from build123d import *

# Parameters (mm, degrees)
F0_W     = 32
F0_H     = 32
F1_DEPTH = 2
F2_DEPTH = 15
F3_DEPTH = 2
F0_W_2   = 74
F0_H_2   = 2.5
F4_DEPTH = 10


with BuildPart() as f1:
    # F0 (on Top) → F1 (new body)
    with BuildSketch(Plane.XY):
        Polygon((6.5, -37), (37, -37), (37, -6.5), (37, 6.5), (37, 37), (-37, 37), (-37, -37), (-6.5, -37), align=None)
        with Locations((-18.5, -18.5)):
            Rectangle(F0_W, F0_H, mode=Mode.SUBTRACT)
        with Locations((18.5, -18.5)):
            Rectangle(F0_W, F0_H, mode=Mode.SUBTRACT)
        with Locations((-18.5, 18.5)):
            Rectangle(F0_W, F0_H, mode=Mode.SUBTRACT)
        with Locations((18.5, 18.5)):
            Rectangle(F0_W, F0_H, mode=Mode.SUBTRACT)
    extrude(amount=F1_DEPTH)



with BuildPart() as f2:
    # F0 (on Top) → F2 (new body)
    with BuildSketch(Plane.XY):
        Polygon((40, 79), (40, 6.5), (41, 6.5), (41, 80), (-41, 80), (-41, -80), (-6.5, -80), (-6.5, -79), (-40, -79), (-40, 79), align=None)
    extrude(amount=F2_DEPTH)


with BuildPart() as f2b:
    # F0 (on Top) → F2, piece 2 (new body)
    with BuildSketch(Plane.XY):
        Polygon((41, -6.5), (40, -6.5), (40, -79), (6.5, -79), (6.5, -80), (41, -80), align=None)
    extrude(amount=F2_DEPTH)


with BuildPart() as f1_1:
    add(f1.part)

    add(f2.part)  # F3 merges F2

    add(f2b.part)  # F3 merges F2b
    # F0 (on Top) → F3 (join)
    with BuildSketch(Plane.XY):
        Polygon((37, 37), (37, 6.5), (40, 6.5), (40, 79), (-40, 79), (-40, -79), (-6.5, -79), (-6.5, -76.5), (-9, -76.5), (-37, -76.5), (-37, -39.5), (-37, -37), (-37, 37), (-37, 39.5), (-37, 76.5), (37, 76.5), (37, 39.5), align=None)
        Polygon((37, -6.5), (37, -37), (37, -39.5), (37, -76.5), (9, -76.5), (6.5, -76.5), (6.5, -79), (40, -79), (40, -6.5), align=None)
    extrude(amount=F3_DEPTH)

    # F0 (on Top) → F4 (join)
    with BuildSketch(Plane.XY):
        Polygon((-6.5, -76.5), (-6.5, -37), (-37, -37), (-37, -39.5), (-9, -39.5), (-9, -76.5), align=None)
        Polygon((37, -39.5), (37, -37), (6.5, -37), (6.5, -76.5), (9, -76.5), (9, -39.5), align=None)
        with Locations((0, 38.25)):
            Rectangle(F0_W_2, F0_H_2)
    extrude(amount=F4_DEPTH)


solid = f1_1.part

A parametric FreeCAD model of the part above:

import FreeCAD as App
import Part
import Sketcher
Q = App.Units.Quantity

doc = App.newDocument("Part")
params = doc.addObject("Spreadsheet::Sheet", "Params")
for row, (alias, value) in enumerate([
    ("sketch1_width", "74 mm"),
    ("sketch1_width2", "32 mm"),
    ("pad1_length", "2 mm"),
    ("sketch2_width", "1 mm"),
    ("sketch2_width2", "82 mm"),
    ("sketch2_height", "160 mm"),
    ("sketch2_width3", "34.5 mm"),
    ("sketch2_height2", "72.5 mm"),
    ("pad2_length", "15 mm"),
    ("sketch3_width", "1 mm"),
    ("sketch3_width2", "33.5 mm"),
    ("sketch3_height", "72.5 mm"),
    ("pad3_length", "15 mm"),
    ("sketch4_width", "3 mm"),
    ("sketch4_width2", "80 mm"),
    ("sketch4_height", "158 mm"),
    ("sketch4_height2", "153 mm"),
    ("sketch4_height3", "70 mm"),
    ("pad4_length", "2 mm"),
    ("sketch5_width", "28 mm"),
    ("sketch5_width2", "74 mm"),
    ("sketch5_height", "37 mm"),
    ("sketch5_width3", "30.5 mm"),
    ("pad5_length", "10 mm"),
], start=1):
    params.set(f"A{row}", alias)
    params.set(f"B{row}", "=" + value)
    params.setAlias(f"B{row}", alias)

body = doc.addObject("PartDesign::Body", "Body")

# Sketch on XY plane
sketch1 = body.newObject("Sketcher::SketchObject", "Sketch")
sketch1.AttachmentSupport = (doc.getObject("XY_Plane"), [""])
sketch1.MapMode = "FlatFace"
sketch1.addGeometry([
    Part.LineSegment(App.Vector(37, -37, 0), App.Vector(37, 37, 0)),  # 0
    Part.LineSegment(App.Vector(37, 37, 0), App.Vector(-37, 37, 0)),  # 1
    Part.LineSegment(App.Vector(-37, 37, 0), App.Vector(-37, -37, 0)),  # 2
    Part.LineSegment(App.Vector(-37, -37, 0), App.Vector(37, -37, 0)),  # 3
    Part.LineSegment(App.Vector(-2, -34, 0), App.Vector(-34, -34, 0)),  # 4
    Part.LineSegment(App.Vector(-34, -34, 0), App.Vector(-34, -2, 0)),  # 5
    Part.LineSegment(App.Vector(-34, -2, 0), App.Vector(-2, -2, 0)),  # 6
    Part.LineSegment(App.Vector(-2, -2, 0), App.Vector(-2, -34, 0)),  # 7
    Part.LineSegment(App.Vector(34, -34, 0), App.Vector(2, -34, 0)),  # 8
    Part.LineSegment(App.Vector(2, -34, 0), App.Vector(2, -2, 0)),  # 9
    Part.LineSegment(App.Vector(2, -2, 0), App.Vector(34, -2, 0)),  # 10
    Part.LineSegment(App.Vector(34, -2, 0), App.Vector(34, -34, 0)),  # 11
    Part.LineSegment(App.Vector(-2, 2, 0), App.Vector(-34, 2, 0)),  # 12
    Part.LineSegment(App.Vector(-34, 2, 0), App.Vector(-34, 34, 0)),  # 13
    Part.LineSegment(App.Vector(-34, 34, 0), App.Vector(-2, 34, 0)),  # 14
    Part.LineSegment(App.Vector(-2, 34, 0), App.Vector(-2, 2, 0)),  # 15
    Part.LineSegment(App.Vector(34, 2, 0), App.Vector(2, 2, 0)),  # 16
    Part.LineSegment(App.Vector(2, 2, 0), App.Vector(2, 34, 0)),  # 17
    Part.LineSegment(App.Vector(2, 34, 0), App.Vector(34, 34, 0)),  # 18
    Part.LineSegment(App.Vector(34, 34, 0), App.Vector(34, 2, 0)),  # 19
], False)
sketch1.addConstraint([
    Sketcher.Constraint("Coincident", 0, 2, 1, 1),
    Sketcher.Constraint("Coincident", 1, 2, 2, 1),
    Sketcher.Constraint("Coincident", 2, 2, 3, 1),
    Sketcher.Constraint("Coincident", 3, 2, 0, 1),
    Sketcher.Constraint("Coincident", 4, 2, 5, 1),
    Sketcher.Constraint("Coincident", 5, 2, 6, 1),
    Sketcher.Constraint("Coincident", 6, 2, 7, 1),
    Sketcher.Constraint("Coincident", 7, 2, 4, 1),
    Sketcher.Constraint("Coincident", 8, 2, 9, 1),
    Sketcher.Constraint("Coincident", 9, 2, 10, 1),
    Sketcher.Constraint("Coincident", 10, 2, 11, 1),
    Sketcher.Constraint("Coincident", 11, 2, 8, 1),
    Sketcher.Constraint("Coincident", 12, 2, 13, 1),
    Sketcher.Constraint("Coincident", 13, 2, 14, 1),
    Sketcher.Constraint("Coincident", 14, 2, 15, 1),
    Sketcher.Constraint("Coincident", 15, 2, 12, 1),
    Sketcher.Constraint("Coincident", 16, 2, 17, 1),
    Sketcher.Constraint("Coincident", 17, 2, 18, 1),
    Sketcher.Constraint("Coincident", 18, 2, 19, 1),
    Sketcher.Constraint("Coincident", 19, 2, 16, 1),
    Sketcher.Constraint("Vertical", 0),
    Sketcher.Constraint("Horizontal", 1),
    Sketcher.Constraint("Vertical", 2),
    Sketcher.Constraint("Horizontal", 3),
    Sketcher.Constraint("Horizontal", 4),
    Sketcher.Constraint("Vertical", 5),
    Sketcher.Constraint("Horizontal", 6),
    Sketcher.Constraint("Vertical", 7),
    Sketcher.Constraint("Horizontal", 8),
    Sketcher.Constraint("Vertical", 9),
    Sketcher.Constraint("Horizontal", 10),
    Sketcher.Constraint("Vertical", 11),
    Sketcher.Constraint("Horizontal", 12),
    Sketcher.Constraint("Vertical", 13),
    Sketcher.Constraint("Horizontal", 14),
    Sketcher.Constraint("Vertical", 15),
    Sketcher.Constraint("Horizontal", 16),
    Sketcher.Constraint("Vertical", 17),
    Sketcher.Constraint("Horizontal", 18),
    Sketcher.Constraint("Vertical", 19),
    Sketcher.Constraint("Symmetric", 0, 2, 2, 2, -1, 1),
    Sketcher.Constraint("Symmetric", 10, 2, 12, 2, -1, 1),
    Sketcher.Constraint("Symmetric", 8, 2, 14, 2, -1, 1),
    Sketcher.Constraint("Symmetric", 6, 2, 16, 2, -1, 1),
    Sketcher.Constraint("Symmetric", 4, 2, 18, 2, -1, 1),
    Sketcher.Constraint("Symmetric", 7, 2, 8, 2, -2),
    Sketcher.Constraint("Symmetric", 5, 2, 10, 2, -2),
    Sketcher.Constraint("Equal", 3, 0),
    Sketcher.Constraint("Equal", 18, 5),
    Sketcher.Constraint("DistanceX", 1, 2, 1, 1, Q("74 mm")),
    Sketcher.Constraint("DistanceX", 4, 2, 4, 1, Q("32 mm")),
    Sketcher.Constraint("DistanceX", 7, 2, 8, 2, Q("5 mm")),
    Sketcher.Constraint("DistanceY", 5, 2, 12, 2, Q("5 mm")),
])
sketch1.setExpression("Constraints[49]", "Params.sketch1_width")
sketch1.setExpression("Constraints[50]", "Params.sketch1_width2")
pad1 = body.newObject("PartDesign::Pad", "Pad")
pad1.Profile = sketch1
pad1.setExpression("Length", "Params.pad1_length")
body2 = doc.addObject("PartDesign::Body", "Body001")

# Sketch on XY plane
sketch2 = body2.newObject("Sketcher::SketchObject", "Sketch001")
sketch2.AttachmentSupport = (doc.getObject("XY_Plane001"), [""])
sketch2.MapMode = "FlatFace"
sketch2.addGeometry([
    Part.LineSegment(App.Vector(40, 79, 0), App.Vector(40, 6.5, 0)),  # 0
    Part.LineSegment(App.Vector(40, 6.5, 0), App.Vector(41, 6.5, 0)),  # 1
    Part.LineSegment(App.Vector(41, 6.5, 0), App.Vector(41, 80, 0)),  # 2
    Part.LineSegment(App.Vector(41, 80, 0), App.Vector(-41, 80, 0)),  # 3
    Part.LineSegment(App.Vector(-41, 80, 0), App.Vector(-41, -80, 0)),  # 4
    Part.LineSegment(App.Vector(-41, -80, 0), App.Vector(-6.5, -80, 0)),  # 5
    Part.LineSegment(App.Vector(-6.5, -80, 0), App.Vector(-6.5, -79, 0)),  # 6
    Part.LineSegment(App.Vector(-6.5, -79, 0), App.Vector(-40, -79, 0)),  # 7
    Part.LineSegment(App.Vector(-40, -79, 0), App.Vector(-40, 79, 0)),  # 8
    Part.LineSegment(App.Vector(-40, 79, 0), App.Vector(40, 79, 0)),  # 9
], False)
sketch2.addConstraint([
    Sketcher.Constraint("Coincident", 0, 2, 1, 1),
    Sketcher.Constraint("Coincident", 1, 2, 2, 1),
    Sketcher.Constraint("Coincident", 2, 2, 3, 1),
    Sketcher.Constraint("Coincident", 3, 2, 4, 1),
    Sketcher.Constraint("Coincident", 4, 2, 5, 1),
    Sketcher.Constraint("Coincident", 5, 2, 6, 1),
    Sketcher.Constraint("Coincident", 6, 2, 7, 1),
    Sketcher.Constraint("Coincident", 7, 2, 8, 1),
    Sketcher.Constraint("Coincident", 8, 2, 9, 1),
    Sketcher.Constraint("Coincident", 9, 2, 0, 1),
    Sketcher.Constraint("Vertical", 0),
    Sketcher.Constraint("Horizontal", 1),
    Sketcher.Constraint("Vertical", 2),
    Sketcher.Constraint("Horizontal", 3),
    Sketcher.Constraint("Vertical", 4),
    Sketcher.Constraint("Horizontal", 5),
    Sketcher.Constraint("Vertical", 6),
    Sketcher.Constraint("Horizontal", 7),
    Sketcher.Constraint("Vertical", 8),
    Sketcher.Constraint("Horizontal", 9),
    Sketcher.Constraint("Symmetric", 2, 2, 4, 2, -1, 1),
    Sketcher.Constraint("Symmetric", 7, 2, 9, 2, -1, 1),
    Sketcher.Constraint("Equal", 1, 6),
    Sketcher.Constraint("DistanceX", 1, 1, 1, 2, Q("1 mm")),
    Sketcher.Constraint("DistanceX", 3, 2, 3, 1, Q("82 mm")),
    Sketcher.Constraint("DistanceY", 4, 2, 4, 1, Q("160 mm")),
    Sketcher.Constraint("DistanceX", 5, 1, 5, 2, Q("34.5 mm")),
    Sketcher.Constraint("DistanceY", 0, 2, 0, 1, Q("72.5 mm")),
])
sketch2.setExpression("Constraints[23]", "Params.sketch2_width")
sketch2.setExpression("Constraints[24]", "Params.sketch2_width2")
sketch2.setExpression("Constraints[25]", "Params.sketch2_height")
sketch2.setExpression("Constraints[26]", "Params.sketch2_width3")
sketch2.setExpression("Constraints[27]", "Params.sketch2_height2")
pad2 = body2.newObject("PartDesign::Pad", "Pad001")
pad2.Profile = sketch2
pad2.setExpression("Length", "Params.pad2_length")
body3 = doc.addObject("PartDesign::Body", "Body002")

# Sketch on XY plane
sketch3 = body3.newObject("Sketcher::SketchObject", "Sketch002")
sketch3.AttachmentSupport = (doc.getObject("XY_Plane002"), [""])
sketch3.MapMode = "FlatFace"
sketch3.addGeometry([
    Part.LineSegment(App.Vector(41, -6.5, 0), App.Vector(40, -6.5, 0)),  # 0
    Part.LineSegment(App.Vector(40, -6.5, 0), App.Vector(40, -79, 0)),  # 1
    Part.LineSegment(App.Vector(40, -79, 0), App.Vector(6.5, -79, 0)),  # 2
    Part.LineSegment(App.Vector(6.5, -79, 0), App.Vector(6.5, -80, 0)),  # 3
    Part.LineSegment(App.Vector(6.5, -80, 0), App.Vector(41, -80, 0)),  # 4
    Part.LineSegment(App.Vector(41, -80, 0), App.Vector(41, -6.5, 0)),  # 5
], False)
sketch3.addConstraint([
    Sketcher.Constraint("Coincident", 0, 2, 1, 1),
    Sketcher.Constraint("Coincident", 1, 2, 2, 1),
    Sketcher.Constraint("Coincident", 2, 2, 3, 1),
    Sketcher.Constraint("Coincident", 3, 2, 4, 1),
    Sketcher.Constraint("Coincident", 4, 2, 5, 1),
    Sketcher.Constraint("Coincident", 5, 2, 0, 1),
    Sketcher.Constraint("Horizontal", 0),
    Sketcher.Constraint("Vertical", 1),
    Sketcher.Constraint("Horizontal", 2),
    Sketcher.Constraint("Vertical", 3),
    Sketcher.Constraint("Horizontal", 4),
    Sketcher.Constraint("Vertical", 5),
    Sketcher.Constraint("Equal", 0, 3),
    Sketcher.Constraint("DistanceX", 0, 2, 0, 1, Q("1 mm")),
    Sketcher.Constraint("DistanceX", 2, 2, 2, 1, Q("33.5 mm")),
    Sketcher.Constraint("DistanceY", 1, 2, 1, 1, Q("72.5 mm")),
    Sketcher.Constraint("DistanceX", -1, 1, 0, 2, Q("40 mm")),
    Sketcher.Constraint("DistanceY", 1, 2, -1, 1, Q("79 mm")),
])
sketch3.setExpression("Constraints[13]", "Params.sketch3_width")
sketch3.setExpression("Constraints[14]", "Params.sketch3_width2")
sketch3.setExpression("Constraints[15]", "Params.sketch3_height")
pad3 = body3.newObject("PartDesign::Pad", "Pad002")
pad3.Profile = sketch3
pad3.setExpression("Length", "Params.pad3_length")
body.AllowCompound = True
doc.recompute()

boolean = body.newObject("PartDesign::Boolean", "Boolean")
boolean.Type = "Fuse"
boolean.addObjects([body2])
doc.recompute()

boolean2 = body.newObject("PartDesign::Boolean", "Boolean001")
boolean2.Type = "Fuse"
boolean2.addObjects([body3])

# Sketch on XY plane
sketch4 = body.newObject("Sketcher::SketchObject", "Sketch003")
sketch4.AttachmentSupport = (doc.getObject("XY_Plane"), [""])
sketch4.MapMode = "FlatFace"
sketch4.addGeometry([
    Part.LineSegment(App.Vector(37, 6.5, 0), App.Vector(40, 6.5, 0)),  # 0
    Part.LineSegment(App.Vector(40, 6.5, 0), App.Vector(40, 79, 0)),  # 1
    Part.LineSegment(App.Vector(40, 79, 0), App.Vector(-40, 79, 0)),  # 2
    Part.LineSegment(App.Vector(-40, 79, 0), App.Vector(-40, -79, 0)),  # 3
    Part.LineSegment(App.Vector(-40, -79, 0), App.Vector(-6.5, -79, 0)),  # 4
    Part.LineSegment(App.Vector(-6.5, -79, 0), App.Vector(-6.5, -76.5, 0)),  # 5
    Part.LineSegment(App.Vector(-6.5, -76.5, 0), App.Vector(-37, -76.5, 0)),  # 6
    Part.LineSegment(App.Vector(-37, -76.5, 0), App.Vector(-37, 76.5, 0)),  # 7
    Part.LineSegment(App.Vector(-37, 76.5, 0), App.Vector(37, 76.5, 0)),  # 8
    Part.LineSegment(App.Vector(37, 76.5, 0), App.Vector(37, 6.5, 0)),  # 9
    Part.LineSegment(App.Vector(37, -6.5, 0), App.Vector(37, -76.5, 0)),  # 10
    Part.LineSegment(App.Vector(37, -76.5, 0), App.Vector(6.5, -76.5, 0)),  # 11
    Part.LineSegment(App.Vector(6.5, -76.5, 0), App.Vector(6.5, -79, 0)),  # 12
    Part.LineSegment(App.Vector(6.5, -79, 0), App.Vector(40, -79, 0)),  # 13
    Part.LineSegment(App.Vector(40, -79, 0), App.Vector(40, -6.5, 0)),  # 14
    Part.LineSegment(App.Vector(40, -6.5, 0), App.Vector(37, -6.5, 0)),  # 15
], False)
sketch4.addConstraint([
    Sketcher.Constraint("Coincident", 0, 2, 1, 1),
    Sketcher.Constraint("Coincident", 1, 2, 2, 1),
    Sketcher.Constraint("Coincident", 2, 2, 3, 1),
    Sketcher.Constraint("Coincident", 3, 2, 4, 1),
    Sketcher.Constraint("Coincident", 4, 2, 5, 1),
    Sketcher.Constraint("Coincident", 5, 2, 6, 1),
    Sketcher.Constraint("Coincident", 6, 2, 7, 1),
    Sketcher.Constraint("Coincident", 7, 2, 8, 1),
    Sketcher.Constraint("Coincident", 8, 2, 9, 1),
    Sketcher.Constraint("Coincident", 9, 2, 0, 1),
    Sketcher.Constraint("Coincident", 10, 2, 11, 1),
    Sketcher.Constraint("Coincident", 11, 2, 12, 1),
    Sketcher.Constraint("Coincident", 12, 2, 13, 1),
    Sketcher.Constraint("Coincident", 13, 2, 14, 1),
    Sketcher.Constraint("Coincident", 14, 2, 15, 1),
    Sketcher.Constraint("Coincident", 15, 2, 10, 1),
    Sketcher.Constraint("Horizontal", 0),
    Sketcher.Constraint("Vertical", 1),
    Sketcher.Constraint("Horizontal", 2),
    Sketcher.Constraint("Vertical", 3),
    Sketcher.Constraint("Horizontal", 4),
    Sketcher.Constraint("Vertical", 5),
    Sketcher.Constraint("Horizontal", 6),
    Sketcher.Constraint("Vertical", 7),
    Sketcher.Constraint("Horizontal", 8),
    Sketcher.Constraint("Vertical", 9),
    Sketcher.Constraint("Vertical", 10),
    Sketcher.Constraint("Horizontal", 11),
    Sketcher.Constraint("Vertical", 12),
    Sketcher.Constraint("Horizontal", 13),
    Sketcher.Constraint("Vertical", 14),
    Sketcher.Constraint("Horizontal", 15),
    Sketcher.Constraint("Symmetric", 1, 2, 3, 2, -1, 1),
    Sketcher.Constraint("Symmetric", 6, 2, 8, 2, -1, 1),
    Sketcher.Constraint("Symmetric", 7, 2, 10, 2, -1, 1),
    Sketcher.Constraint("Symmetric", 2, 2, 13, 2, -1, 1),
    Sketcher.Constraint("Equal", 6, 11),
    Sketcher.Constraint("Equal", 9, 10),
    Sketcher.Constraint("DistanceX", 0, 1, 0, 2, Q("3 mm")),
    Sketcher.Constraint("DistanceX", 2, 2, 2, 1, Q("80 mm")),
    Sketcher.Constraint("DistanceY", 3, 2, 3, 1, Q("158 mm")),
    Sketcher.Constraint("DistanceY", 7, 1, 7, 2, Q("153 mm")),
    Sketcher.Constraint("DistanceY", 9, 2, 9, 1, Q("70 mm")),
    Sketcher.Constraint("DistanceX", 4, 1, 4, 2, Q("33.5 mm")),
])
sketch4.setExpression("Constraints[38]", "Params.sketch4_width")
sketch4.setExpression("Constraints[39]", "Params.sketch4_width2")
sketch4.setExpression("Constraints[40]", "Params.sketch4_height")
sketch4.setExpression("Constraints[41]", "Params.sketch4_height2")
sketch4.setExpression("Constraints[42]", "Params.sketch4_height3")
pad4 = body.newObject("PartDesign::Pad", "Pad003")
pad4.Profile = sketch4
pad4.setExpression("Length", "Params.pad4_length")

# Sketch on XY plane
sketch5 = body.newObject("Sketcher::SketchObject", "Sketch004")
sketch5.AttachmentSupport = (doc.getObject("XY_Plane"), [""])
sketch5.MapMode = "FlatFace"
sketch5.addGeometry([
    Part.LineSegment(App.Vector(-6.5, -76.5, 0), App.Vector(-6.5, -37, 0)),  # 0
    Part.LineSegment(App.Vector(-6.5, -37, 0), App.Vector(-37, -37, 0)),  # 1
    Part.LineSegment(App.Vector(-37, -37, 0), App.Vector(-37, -39.5, 0)),  # 2
    Part.LineSegment(App.Vector(-37, -39.5, 0), App.Vector(-9, -39.5, 0)),  # 3
    Part.LineSegment(App.Vector(-9, -39.5, 0), App.Vector(-9, -76.5, 0)),  # 4
    Part.LineSegment(App.Vector(-9, -76.5, 0), App.Vector(-6.5, -76.5, 0)),  # 5
    Part.LineSegment(App.Vector(37, -39.5, 0), App.Vector(37, -37, 0)),  # 6
    Part.LineSegment(App.Vector(37, -37, 0), App.Vector(6.5, -37, 0)),  # 7
    Part.LineSegment(App.Vector(6.5, -37, 0), App.Vector(6.5, -76.5, 0)),  # 8
    Part.LineSegment(App.Vector(6.5, -76.5, 0), App.Vector(9, -76.5, 0)),  # 9
    Part.LineSegment(App.Vector(9, -76.5, 0), App.Vector(9, -39.5, 0)),  # 10
    Part.LineSegment(App.Vector(9, -39.5, 0), App.Vector(37, -39.5, 0)),  # 11
    Part.LineSegment(App.Vector(-37, 39.5, 0), App.Vector(-37, 37, 0)),  # 12
    Part.LineSegment(App.Vector(-37, 37, 0), App.Vector(37, 37, 0)),  # 13
    Part.LineSegment(App.Vector(37, 37, 0), App.Vector(37, 39.5, 0)),  # 14
    Part.LineSegment(App.Vector(37, 39.5, 0), App.Vector(-37, 39.5, 0)),  # 15
], False)
sketch5.addConstraint([
    Sketcher.Constraint("Coincident", 0, 2, 1, 1),
    Sketcher.Constraint("Coincident", 1, 2, 2, 1),
    Sketcher.Constraint("Coincident", 2, 2, 3, 1),
    Sketcher.Constraint("Coincident", 3, 2, 4, 1),
    Sketcher.Constraint("Coincident", 4, 2, 5, 1),
    Sketcher.Constraint("Coincident", 5, 2, 0, 1),
    Sketcher.Constraint("Coincident", 6, 2, 7, 1),
    Sketcher.Constraint("Coincident", 7, 2, 8, 1),
    Sketcher.Constraint("Coincident", 8, 2, 9, 1),
    Sketcher.Constraint("Coincident", 9, 2, 10, 1),
    Sketcher.Constraint("Coincident", 10, 2, 11, 1),
    Sketcher.Constraint("Coincident", 11, 2, 6, 1),
    Sketcher.Constraint("Coincident", 12, 2, 13, 1),
    Sketcher.Constraint("Coincident", 13, 2, 14, 1),
    Sketcher.Constraint("Coincident", 14, 2, 15, 1),
    Sketcher.Constraint("Coincident", 15, 2, 12, 1),
    Sketcher.Constraint("Vertical", 0),
    Sketcher.Constraint("Horizontal", 1),
    Sketcher.Constraint("Vertical", 2),
    Sketcher.Constraint("Horizontal", 3),
    Sketcher.Constraint("Vertical", 4),
    Sketcher.Constraint("Horizontal", 5),
    Sketcher.Constraint("Vertical", 6),
    Sketcher.Constraint("Horizontal", 7),
    Sketcher.Constraint("Vertical", 8),
    Sketcher.Constraint("Horizontal", 9),
    Sketcher.Constraint("Vertical", 10),
    Sketcher.Constraint("Horizontal", 11),
    Sketcher.Constraint("Vertical", 12),
    Sketcher.Constraint("Horizontal", 13),
    Sketcher.Constraint("Vertical", 14),
    Sketcher.Constraint("Horizontal", 15),
    Sketcher.Constraint("Symmetric", 6, 2, 12, 2, -1, 1),
    Sketcher.Constraint("Symmetric", 1, 2, 13, 2, -1, 1),
    Sketcher.Constraint("Symmetric", 5, 2, 8, 2, -2),
    Sketcher.Constraint("Symmetric", 3, 2, 10, 2, -2),
    Sketcher.Constraint("Symmetric", 11, 2, 14, 2, -1),
    Sketcher.Constraint("Equal", 9, 2),
    Sketcher.Constraint("DistanceX", 3, 1, 3, 2, Q("28 mm")),
    Sketcher.Constraint("DistanceX", 13, 1, 13, 2, Q("74 mm")),
    Sketcher.Constraint("DistanceY", 4, 2, 4, 1, Q("37 mm")),
    Sketcher.Constraint("DistanceX", 1, 2, 1, 1, Q("30.5 mm")),
    Sketcher.Constraint("DistanceY", 0, 2, -1, 1, Q("37 mm")),
])
sketch5.setExpression("Constraints[38]", "Params.sketch5_width")
sketch5.setExpression("Constraints[39]", "Params.sketch5_width2")
sketch5.setExpression("Constraints[40]", "Params.sketch5_height")
sketch5.setExpression("Constraints[41]", "Params.sketch5_width3")
pad5 = body.newObject("PartDesign::Pad", "Pad004")
pad5.Profile = sketch5
pad5.setExpression("Length", "Params.pad5_length")

doc.recompute()
